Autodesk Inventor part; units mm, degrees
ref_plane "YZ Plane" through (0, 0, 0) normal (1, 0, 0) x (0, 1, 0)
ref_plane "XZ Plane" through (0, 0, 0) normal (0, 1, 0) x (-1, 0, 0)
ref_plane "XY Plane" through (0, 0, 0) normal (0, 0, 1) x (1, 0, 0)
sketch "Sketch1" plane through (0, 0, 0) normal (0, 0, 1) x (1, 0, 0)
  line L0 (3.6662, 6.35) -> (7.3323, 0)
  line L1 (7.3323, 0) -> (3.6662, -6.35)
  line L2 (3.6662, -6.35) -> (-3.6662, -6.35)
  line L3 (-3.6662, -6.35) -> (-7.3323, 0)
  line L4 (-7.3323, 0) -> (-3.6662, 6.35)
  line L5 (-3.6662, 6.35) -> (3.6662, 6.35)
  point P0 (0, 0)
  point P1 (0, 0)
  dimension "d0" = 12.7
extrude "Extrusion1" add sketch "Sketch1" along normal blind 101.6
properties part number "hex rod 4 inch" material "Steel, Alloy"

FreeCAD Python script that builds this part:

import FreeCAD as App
import Part
import Sketcher
Q = App.Units.Quantity


def add_polygon(sketch, points):
    """Adds a closed chain of lines whose ends are joined by coincident constraints."""
    first, n = sketch.GeometryCount, len(points)
    for a, b in zip(points, points[1:] + points[:1]):
        sketch.addGeometry(Part.LineSegment(App.Vector(*a, 0), App.Vector(*b, 0)), False)
    for i in range(n):
        sketch.addConstraint(Sketcher.Constraint("Coincident", first + i, 2, first + (i + 1) % n, 1))

doc = App.newDocument("Part")
body = doc.addObject("PartDesign::Body", "Body")

# Sketch on XY plane
sketch1 = body.newObject("Sketcher::SketchObject", "Sketch")
sketch1.AttachmentSupport = (doc.getObject("XY_Plane"), [""])
sketch1.MapMode = "FlatFace"
add_polygon(sketch1, [(7.3323, 0), (3.6662, 6.35), (-3.6662, 6.35), (-7.3323, 0), (-3.6662, -6.35), (3.6662, -6.35)])  # lines 0-5
sketch1.addConstraint(Sketcher.Constraint("Horizontal", 1))
sketch1.addConstraint(Sketcher.Constraint("Horizontal", 4))
sketch1.addConstraint(Sketcher.Constraint("Symmetric", 0, 2, 3, 2, -1, 1))
sketch1.addConstraint(Sketcher.Constraint("Symmetric", 2, 2, 5, 2, -1, 1))
sketch1.addConstraint(Sketcher.Constraint("PointOnObject", 2, 2, -1))
sketch1.addConstraint(Sketcher.Constraint("Parallel", 2, 5))
sketch1.addConstraint(Sketcher.Constraint("Vertical", 1, 2, 3, 2))
sketch1.addConstraint(Sketcher.Constraint("DistanceY", 3, 2, 1, 2, Q("0.5 in")))
sketch1.addConstraint(Sketcher.Constraint("Angle", 0, Q("119.9995 deg")))
sketch1.addConstraint(Sketcher.Constraint("DistanceX", 2, 2, 0, 2, Q("0.433 in")))
pad1 = body.newObject("PartDesign::Pad", "Pad")
pad1.Profile = sketch1
pad1.Length = Q("4 in")

doc.recompute()
